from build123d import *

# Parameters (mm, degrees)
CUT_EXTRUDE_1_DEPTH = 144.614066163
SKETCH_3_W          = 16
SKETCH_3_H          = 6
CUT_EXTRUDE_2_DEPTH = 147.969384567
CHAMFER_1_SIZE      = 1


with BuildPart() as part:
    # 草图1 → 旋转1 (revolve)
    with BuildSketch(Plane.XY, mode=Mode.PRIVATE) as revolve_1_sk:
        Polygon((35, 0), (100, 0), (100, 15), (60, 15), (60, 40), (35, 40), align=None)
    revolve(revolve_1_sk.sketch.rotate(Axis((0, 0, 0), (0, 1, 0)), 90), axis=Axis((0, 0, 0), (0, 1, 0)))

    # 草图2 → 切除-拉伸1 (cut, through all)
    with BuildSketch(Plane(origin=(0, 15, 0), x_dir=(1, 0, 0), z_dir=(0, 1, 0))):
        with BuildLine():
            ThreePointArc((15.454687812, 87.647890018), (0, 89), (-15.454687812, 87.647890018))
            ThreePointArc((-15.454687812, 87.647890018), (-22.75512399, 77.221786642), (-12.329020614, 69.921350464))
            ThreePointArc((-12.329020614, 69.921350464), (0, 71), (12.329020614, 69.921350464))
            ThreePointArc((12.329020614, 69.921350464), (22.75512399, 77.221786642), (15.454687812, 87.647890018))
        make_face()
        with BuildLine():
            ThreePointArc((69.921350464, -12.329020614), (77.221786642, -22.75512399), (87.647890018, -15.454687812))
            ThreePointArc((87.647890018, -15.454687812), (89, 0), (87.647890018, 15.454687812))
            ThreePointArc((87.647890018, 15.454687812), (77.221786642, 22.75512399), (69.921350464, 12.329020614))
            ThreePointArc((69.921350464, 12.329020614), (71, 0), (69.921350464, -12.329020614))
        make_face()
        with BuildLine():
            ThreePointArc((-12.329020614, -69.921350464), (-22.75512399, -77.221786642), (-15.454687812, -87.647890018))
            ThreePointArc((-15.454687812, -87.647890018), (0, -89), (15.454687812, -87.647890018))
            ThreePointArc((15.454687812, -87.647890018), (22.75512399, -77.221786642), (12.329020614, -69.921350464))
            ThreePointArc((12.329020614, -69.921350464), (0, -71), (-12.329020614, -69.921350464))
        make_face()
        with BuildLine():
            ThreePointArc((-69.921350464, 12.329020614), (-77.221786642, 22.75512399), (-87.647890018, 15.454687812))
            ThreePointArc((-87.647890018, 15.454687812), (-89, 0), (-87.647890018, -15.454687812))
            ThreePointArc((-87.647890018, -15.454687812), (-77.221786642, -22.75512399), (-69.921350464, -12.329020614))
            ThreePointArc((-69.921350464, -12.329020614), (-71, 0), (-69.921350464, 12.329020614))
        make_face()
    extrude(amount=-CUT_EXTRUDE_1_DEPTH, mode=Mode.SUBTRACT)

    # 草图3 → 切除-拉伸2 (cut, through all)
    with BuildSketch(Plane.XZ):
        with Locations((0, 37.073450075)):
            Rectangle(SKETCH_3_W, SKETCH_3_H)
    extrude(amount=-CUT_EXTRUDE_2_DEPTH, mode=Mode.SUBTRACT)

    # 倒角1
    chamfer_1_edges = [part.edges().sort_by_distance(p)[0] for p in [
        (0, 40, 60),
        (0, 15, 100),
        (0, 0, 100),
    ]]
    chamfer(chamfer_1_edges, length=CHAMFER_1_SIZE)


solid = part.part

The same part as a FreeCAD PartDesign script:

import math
import FreeCAD as App
import Part
import Sketcher

V = App.Vector
Q = App.Units.Quantity


def edges_at(feature, points):
    """Names of the edges that pass closest to the given points."""
    edges = feature.Shape.Edges
    near = lambda p: min(range(len(edges)), key=lambda i: edges[i].distToShape(Part.Vertex(*p))[0])
    return sorted({f"Edge{near(p) + 1}" for p in points})

doc = App.newDocument("Part")
body = doc.addObject("PartDesign::Body", "Body")

sketch1 = body.newObject("Sketcher::SketchObject", "Sketch")
sketch1.AttachmentSupport = (doc.getObject("XY_Plane"), [""])
sketch1.MapMode = "FlatFace"
sketch1.addGeometry(Part.LineSegment(V(35, 0, 0), V(100, 0, 0)), False)
sketch1.addGeometry(Part.LineSegment(V(100, 0, 0), V(100, 15, 0)), False)
sketch1.addGeometry(Part.LineSegment(V(100, 15, 0), V(60, 15, 0)), False)
sketch1.addGeometry(Part.LineSegment(V(60, 15, 0), V(60, 40, 0)), False)
sketch1.addGeometry(Part.LineSegment(V(60, 40, 0), V(35, 40, 0)), False)
sketch1.addGeometry(Part.LineSegment(V(35, 40, 0), V(35, 0, 0)), False)
sketch1.addConstraint(Sketcher.Constraint("Coincident", 0, 2, 1, 1))
sketch1.addConstraint(Sketcher.Constraint("Coincident", 1, 2, 2, 1))
sketch1.addConstraint(Sketcher.Constraint("Coincident", 2, 2, 3, 1))
sketch1.addConstraint(Sketcher.Constraint("Coincident", 3, 2, 4, 1))
sketch1.addConstraint(Sketcher.Constraint("Coincident", 4, 2, 5, 1))
sketch1.addConstraint(Sketcher.Constraint("Coincident", 5, 2, 0, 1))
sketch1.addConstraint(Sketcher.Constraint("Horizontal", 0))
sketch1.addConstraint(Sketcher.Constraint("Vertical", 1))
sketch1.addConstraint(Sketcher.Constraint("Horizontal", 2))
sketch1.addConstraint(Sketcher.Constraint("Vertical", 3))
sketch1.addConstraint(Sketcher.Constraint("Horizontal", 4))
sketch1.addConstraint(Sketcher.Constraint("Vertical", 5))
sketch1.addConstraint(Sketcher.Constraint("PointOnObject", 0, 2, -1))
sketch1.addConstraint(Sketcher.Constraint("Equal", 4, 3))
sketch1.addConstraint(Sketcher.Constraint("Equal", 2, 5))
sketch1.addConstraint(Sketcher.Constraint("DistanceX", 0, 1, 0, 2, Q("65 mm")))
sketch1.addConstraint(Sketcher.Constraint("DistanceX", 2, 2, 2, 1, Q("40 mm")))
sketch1.addConstraint(Sketcher.Constraint("DistanceX", -1, 1, 0, 2, Q("100 mm")))
revolution = body.newObject("PartDesign::Revolution", "Revolution")
revolution.Profile = sketch1
revolution.ReferenceAxis = (sketch1, ["V_Axis"])
revolution.Angle = 360

sketch2 = body.newObject("Sketcher::SketchObject", "Sketch001")
sketch2.AttachmentSupport = (doc.getObject("XZ_Plane"), [""])
sketch2.MapMode = "FlatFace"
sketch2.AttachmentOffset = App.Placement(V(0, 0, -15), App.Rotation())
sketch2.addGeometry(Part.ArcOfCircle(Part.Circle(V(0, 0, 0), V(0, 0, 1), 89), math.radians(-100), math.radians(-80)), False)
sketch2.addGeometry(Part.ArcOfCircle(Part.Circle(V(-14, -79, 0), V(0, 0, 1), 9), math.radians(80), math.radians(260)), False)
sketch2.addGeometry(Part.ArcOfCircle(Part.Circle(V(0, 0, 0), V(0, 0, 1), 71), math.radians(-100), math.radians(-80)), False)
sketch2.addGeometry(Part.ArcOfCircle(Part.Circle(V(14, -79, 0), V(0, 0, 1), 9), math.radians(-80), math.radians(100)), False)
sketch2.addGeometry(Part.ArcOfCircle(Part.Circle(V(79, 14, 0), V(0, 0, 1), 9), math.radians(10), math.radians(190)), False)
sketch2.addGeometry(Part.ArcOfCircle(Part.Circle(V(0, 0, 0), V(0, 0, 1), 89), math.radians(-10), math.radians(10)), False)
sketch2.addGeometry(Part.ArcOfCircle(Part.Circle(V(79, -14, 0), V(0, 0, 1), 9), math.radians(170), math.radians(350)), False)
sketch2.addGeometry(Part.ArcOfCircle(Part.Circle(V(0, 0, 0), V(0, 0, 1), 71), math.radians(-10), math.radians(10)), False)
sketch2.addGeometry(Part.ArcOfCircle(Part.Circle(V(-14, 79, 0), V(0, 0, 1), 9), math.radians(100), math.radians(280)), False)
sketch2.addGeometry(Part.ArcOfCircle(Part.Circle(V(0, 0, 0), V(0, 0, 1), 89), math.radians(80), math.radians(100)), False)
sketch2.addGeometry(Part.ArcOfCircle(Part.Circle(V(14, 79, 0), V(0, 0, 1), 9), math.radians(-100), math.radians(80)), False)
sketch2.addGeometry(Part.ArcOfCircle(Part.Circle(V(0, 0, 0), V(0, 0, 1), 71), math.radians(80), math.radians(100)), False)
sketch2.addGeometry(Part.ArcOfCircle(Part.Circle(V(-79, -14, 0), V(0, 0, 1), 9), math.radians(-170), math.radians(10)), False)
sketch2.addGeometry(Part.ArcOfCircle(Part.Circle(V(0, 0, 0), V(0, 0, 1), 89), math.radians(170), math.radians(190)), False)
sketch2.addGeometry(Part.ArcOfCircle(Part.Circle(V(-79, 14, 0), V(0, 0, 1), 9), math.radians(-10), math.radians(170)), False)
sketch2.addGeometry(Part.ArcOfCircle(Part.Circle(V(0, 0, 0), V(0, 0, 1), 71), math.radians(170), math.radians(190)), False)
sketch2.addConstraint(Sketcher.Constraint("Tangent", 0, 1, 1, 2))
sketch2.addConstraint(Sketcher.Constraint("Tangent", 1, 1, 2, 1))
sketch2.addConstraint(Sketcher.Constraint("Tangent", 2, 2, 3, 2))
sketch2.addConstraint(Sketcher.Constraint("Tangent", 3, 1, 0, 2))
sketch2.addConstraint(Sketcher.Constraint("Tangent", 4, 1, 5, 2))
sketch2.addConstraint(Sketcher.Constraint("Tangent", 5, 1, 6, 2))
sketch2.addConstraint(Sketcher.Constraint("Tangent", 6, 1, 7, 1))
sketch2.addConstraint(Sketcher.Constraint("Tangent", 7, 2, 4, 2))
sketch2.addConstraint(Sketcher.Constraint("Tangent", 8, 1, 9, 2))
sketch2.addConstraint(Sketcher.Constraint("Tangent", 9, 1, 10, 2))
sketch2.addConstraint(Sketcher.Constraint("Tangent", 10, 1, 11, 1))
sketch2.addConstraint(Sketcher.Constraint("Tangent", 11, 2, 8, 2))
sketch2.addConstraint(Sketcher.Constraint("Tangent", 12, 1, 13, 2))
sketch2.addConstraint(Sketcher.Constraint("Tangent", 13, 1, 14, 2))
sketch2.addConstraint(Sketcher.Constraint("Tangent", 14, 1, 15, 1))
sketch2.addConstraint(Sketcher.Constraint("Tangent", 15, 2, 12, 2))
sketch2.addConstraint(Sketcher.Constraint("Coincident", 0, 3, -1, 1))
sketch2.addConstraint(Sketcher.Constraint("Coincident", 2, 3, -1, 1))
sketch2.addConstraint(Sketcher.Constraint("Coincident", 5, 3, -1, 1))
sketch2.addConstraint(Sketcher.Constraint("Coincident", 7, 3, -1, 1))
sketch2.addConstraint(Sketcher.Constraint("Coincident", 9, 3, -1, 1))
sketch2.addConstraint(Sketcher.Constraint("Coincident", 11, 3, -1, 1))
sketch2.addConstraint(Sketcher.Constraint("Coincident", 13, 3, -1, 1))
sketch2.addConstraint(Sketcher.Constraint("Coincident", 15, 3, -1, 1))
sketch2.addConstraint(Sketcher.Constraint("Equal", 3, 4))
sketch2.addConstraint(Sketcher.Constraint("Equal", 0, 5))
sketch2.addConstraint(Sketcher.Constraint("Equal", 6, 8))
sketch2.addConstraint(Sketcher.Constraint("Equal", 5, 9))
sketch2.addConstraint(Sketcher.Constraint("Equal", 10, 12))
sketch2.addConstraint(Sketcher.Constraint("Equal", 9, 13))
sketch2.addConstraint(Sketcher.Constraint("Horizontal", 1, 3, 3, 3))
sketch2.addConstraint(Sketcher.Constraint("Horizontal", 8, 3, 10, 3))
sketch2.addConstraint(Sketcher.Constraint("Horizontal", 6, 3, 12, 3))
sketch2.addConstraint(Sketcher.Constraint("Horizontal", 4, 3, 14, 3))
sketch2.addConstraint(Sketcher.Constraint("Vertical", 4, 3, 6, 3))
sketch2.addConstraint(Sketcher.Constraint("Vertical", 1, 3, 8, 3))
sketch2.addConstraint(Sketcher.Constraint("Radius", 0, Q("89 mm")))
sketch2.addConstraint(Sketcher.Constraint("Radius", 1, Q("9 mm")))
sketch2.addConstraint(Sketcher.Constraint("DistanceY", 1, 3, -1, 1, Q("78.78462 mm")))
sketch2.addConstraint(Sketcher.Constraint("DistanceX", -1, 1, 4, 3, Q("78.78462 mm")))
pocket1 = body.newObject("PartDesign::Pocket", "Pocket")
pocket1.Profile = sketch2
pocket1.Type = "ThroughAll"
pocket1.Reversed = True

sketch3 = body.newObject("Sketcher::SketchObject", "Sketch002")
sketch3.AttachmentSupport = (doc.getObject("XZ_Plane"), [""])
sketch3.MapMode = "FlatFace"
sketch3.addGeometry(Part.LineSegment(V(-8, 40, 0), V(-8, 34, 0)), False)
sketch3.addGeometry(Part.LineSegment(V(-8, 34, 0), V(8, 34, 0)), False)
sketch3.addGeometry(Part.LineSegment(V(8, 34, 0), V(8, 40, 0)), False)
sketch3.addGeometry(Part.LineSegment(V(8, 40, 0), V(-8, 40, 0)), False)
sketch3.addConstraint(Sketcher.Constraint("Coincident", 0, 2, 1, 1))
sketch3.addConstraint(Sketcher.Constraint("Coincident", 1, 2, 2, 1))
sketch3.addConstraint(Sketcher.Constraint("Coincident", 2, 2, 3, 1))
sketch3.addConstraint(Sketcher.Constraint("Coincident", 3, 2, 0, 1))
sketch3.addConstraint(Sketcher.Constraint("Vertical", 0))
sketch3.addConstraint(Sketcher.Constraint("Horizontal", 1))
sketch3.addConstraint(Sketcher.Constraint("Vertical", 2))
sketch3.addConstraint(Sketcher.Constraint("Horizontal", 3))
sketch3.addConstraint(Sketcher.Constraint("DistanceX", 1, 1, 1, 2, Q("16 mm")))
sketch3.addConstraint(Sketcher.Constraint("DistanceY", 0, 2, 0, 1, Q("6 mm")))
sketch3.addConstraint(Sketcher.Constraint("DistanceX", 0, 2, -1, 1, Q("8 mm")))
sketch3.addConstraint(Sketcher.Constraint("DistanceY", -1, 1, 0, 2, Q("34.07345 mm")))
pocket2 = body.newObject("PartDesign::Pocket", "Pocket001")
pocket2.Profile = sketch3
pocket2.Type = "ThroughAll"
doc.recompute()

chamfer = body.newObject("PartDesign::Chamfer", "Chamfer")
chamfer.Base = (pocket2, edges_at(pocket2, [(0, 40, 60), (0, 15, 100), (0, 0, 100)]))
chamfer.Size = 1

doc.recompute()
